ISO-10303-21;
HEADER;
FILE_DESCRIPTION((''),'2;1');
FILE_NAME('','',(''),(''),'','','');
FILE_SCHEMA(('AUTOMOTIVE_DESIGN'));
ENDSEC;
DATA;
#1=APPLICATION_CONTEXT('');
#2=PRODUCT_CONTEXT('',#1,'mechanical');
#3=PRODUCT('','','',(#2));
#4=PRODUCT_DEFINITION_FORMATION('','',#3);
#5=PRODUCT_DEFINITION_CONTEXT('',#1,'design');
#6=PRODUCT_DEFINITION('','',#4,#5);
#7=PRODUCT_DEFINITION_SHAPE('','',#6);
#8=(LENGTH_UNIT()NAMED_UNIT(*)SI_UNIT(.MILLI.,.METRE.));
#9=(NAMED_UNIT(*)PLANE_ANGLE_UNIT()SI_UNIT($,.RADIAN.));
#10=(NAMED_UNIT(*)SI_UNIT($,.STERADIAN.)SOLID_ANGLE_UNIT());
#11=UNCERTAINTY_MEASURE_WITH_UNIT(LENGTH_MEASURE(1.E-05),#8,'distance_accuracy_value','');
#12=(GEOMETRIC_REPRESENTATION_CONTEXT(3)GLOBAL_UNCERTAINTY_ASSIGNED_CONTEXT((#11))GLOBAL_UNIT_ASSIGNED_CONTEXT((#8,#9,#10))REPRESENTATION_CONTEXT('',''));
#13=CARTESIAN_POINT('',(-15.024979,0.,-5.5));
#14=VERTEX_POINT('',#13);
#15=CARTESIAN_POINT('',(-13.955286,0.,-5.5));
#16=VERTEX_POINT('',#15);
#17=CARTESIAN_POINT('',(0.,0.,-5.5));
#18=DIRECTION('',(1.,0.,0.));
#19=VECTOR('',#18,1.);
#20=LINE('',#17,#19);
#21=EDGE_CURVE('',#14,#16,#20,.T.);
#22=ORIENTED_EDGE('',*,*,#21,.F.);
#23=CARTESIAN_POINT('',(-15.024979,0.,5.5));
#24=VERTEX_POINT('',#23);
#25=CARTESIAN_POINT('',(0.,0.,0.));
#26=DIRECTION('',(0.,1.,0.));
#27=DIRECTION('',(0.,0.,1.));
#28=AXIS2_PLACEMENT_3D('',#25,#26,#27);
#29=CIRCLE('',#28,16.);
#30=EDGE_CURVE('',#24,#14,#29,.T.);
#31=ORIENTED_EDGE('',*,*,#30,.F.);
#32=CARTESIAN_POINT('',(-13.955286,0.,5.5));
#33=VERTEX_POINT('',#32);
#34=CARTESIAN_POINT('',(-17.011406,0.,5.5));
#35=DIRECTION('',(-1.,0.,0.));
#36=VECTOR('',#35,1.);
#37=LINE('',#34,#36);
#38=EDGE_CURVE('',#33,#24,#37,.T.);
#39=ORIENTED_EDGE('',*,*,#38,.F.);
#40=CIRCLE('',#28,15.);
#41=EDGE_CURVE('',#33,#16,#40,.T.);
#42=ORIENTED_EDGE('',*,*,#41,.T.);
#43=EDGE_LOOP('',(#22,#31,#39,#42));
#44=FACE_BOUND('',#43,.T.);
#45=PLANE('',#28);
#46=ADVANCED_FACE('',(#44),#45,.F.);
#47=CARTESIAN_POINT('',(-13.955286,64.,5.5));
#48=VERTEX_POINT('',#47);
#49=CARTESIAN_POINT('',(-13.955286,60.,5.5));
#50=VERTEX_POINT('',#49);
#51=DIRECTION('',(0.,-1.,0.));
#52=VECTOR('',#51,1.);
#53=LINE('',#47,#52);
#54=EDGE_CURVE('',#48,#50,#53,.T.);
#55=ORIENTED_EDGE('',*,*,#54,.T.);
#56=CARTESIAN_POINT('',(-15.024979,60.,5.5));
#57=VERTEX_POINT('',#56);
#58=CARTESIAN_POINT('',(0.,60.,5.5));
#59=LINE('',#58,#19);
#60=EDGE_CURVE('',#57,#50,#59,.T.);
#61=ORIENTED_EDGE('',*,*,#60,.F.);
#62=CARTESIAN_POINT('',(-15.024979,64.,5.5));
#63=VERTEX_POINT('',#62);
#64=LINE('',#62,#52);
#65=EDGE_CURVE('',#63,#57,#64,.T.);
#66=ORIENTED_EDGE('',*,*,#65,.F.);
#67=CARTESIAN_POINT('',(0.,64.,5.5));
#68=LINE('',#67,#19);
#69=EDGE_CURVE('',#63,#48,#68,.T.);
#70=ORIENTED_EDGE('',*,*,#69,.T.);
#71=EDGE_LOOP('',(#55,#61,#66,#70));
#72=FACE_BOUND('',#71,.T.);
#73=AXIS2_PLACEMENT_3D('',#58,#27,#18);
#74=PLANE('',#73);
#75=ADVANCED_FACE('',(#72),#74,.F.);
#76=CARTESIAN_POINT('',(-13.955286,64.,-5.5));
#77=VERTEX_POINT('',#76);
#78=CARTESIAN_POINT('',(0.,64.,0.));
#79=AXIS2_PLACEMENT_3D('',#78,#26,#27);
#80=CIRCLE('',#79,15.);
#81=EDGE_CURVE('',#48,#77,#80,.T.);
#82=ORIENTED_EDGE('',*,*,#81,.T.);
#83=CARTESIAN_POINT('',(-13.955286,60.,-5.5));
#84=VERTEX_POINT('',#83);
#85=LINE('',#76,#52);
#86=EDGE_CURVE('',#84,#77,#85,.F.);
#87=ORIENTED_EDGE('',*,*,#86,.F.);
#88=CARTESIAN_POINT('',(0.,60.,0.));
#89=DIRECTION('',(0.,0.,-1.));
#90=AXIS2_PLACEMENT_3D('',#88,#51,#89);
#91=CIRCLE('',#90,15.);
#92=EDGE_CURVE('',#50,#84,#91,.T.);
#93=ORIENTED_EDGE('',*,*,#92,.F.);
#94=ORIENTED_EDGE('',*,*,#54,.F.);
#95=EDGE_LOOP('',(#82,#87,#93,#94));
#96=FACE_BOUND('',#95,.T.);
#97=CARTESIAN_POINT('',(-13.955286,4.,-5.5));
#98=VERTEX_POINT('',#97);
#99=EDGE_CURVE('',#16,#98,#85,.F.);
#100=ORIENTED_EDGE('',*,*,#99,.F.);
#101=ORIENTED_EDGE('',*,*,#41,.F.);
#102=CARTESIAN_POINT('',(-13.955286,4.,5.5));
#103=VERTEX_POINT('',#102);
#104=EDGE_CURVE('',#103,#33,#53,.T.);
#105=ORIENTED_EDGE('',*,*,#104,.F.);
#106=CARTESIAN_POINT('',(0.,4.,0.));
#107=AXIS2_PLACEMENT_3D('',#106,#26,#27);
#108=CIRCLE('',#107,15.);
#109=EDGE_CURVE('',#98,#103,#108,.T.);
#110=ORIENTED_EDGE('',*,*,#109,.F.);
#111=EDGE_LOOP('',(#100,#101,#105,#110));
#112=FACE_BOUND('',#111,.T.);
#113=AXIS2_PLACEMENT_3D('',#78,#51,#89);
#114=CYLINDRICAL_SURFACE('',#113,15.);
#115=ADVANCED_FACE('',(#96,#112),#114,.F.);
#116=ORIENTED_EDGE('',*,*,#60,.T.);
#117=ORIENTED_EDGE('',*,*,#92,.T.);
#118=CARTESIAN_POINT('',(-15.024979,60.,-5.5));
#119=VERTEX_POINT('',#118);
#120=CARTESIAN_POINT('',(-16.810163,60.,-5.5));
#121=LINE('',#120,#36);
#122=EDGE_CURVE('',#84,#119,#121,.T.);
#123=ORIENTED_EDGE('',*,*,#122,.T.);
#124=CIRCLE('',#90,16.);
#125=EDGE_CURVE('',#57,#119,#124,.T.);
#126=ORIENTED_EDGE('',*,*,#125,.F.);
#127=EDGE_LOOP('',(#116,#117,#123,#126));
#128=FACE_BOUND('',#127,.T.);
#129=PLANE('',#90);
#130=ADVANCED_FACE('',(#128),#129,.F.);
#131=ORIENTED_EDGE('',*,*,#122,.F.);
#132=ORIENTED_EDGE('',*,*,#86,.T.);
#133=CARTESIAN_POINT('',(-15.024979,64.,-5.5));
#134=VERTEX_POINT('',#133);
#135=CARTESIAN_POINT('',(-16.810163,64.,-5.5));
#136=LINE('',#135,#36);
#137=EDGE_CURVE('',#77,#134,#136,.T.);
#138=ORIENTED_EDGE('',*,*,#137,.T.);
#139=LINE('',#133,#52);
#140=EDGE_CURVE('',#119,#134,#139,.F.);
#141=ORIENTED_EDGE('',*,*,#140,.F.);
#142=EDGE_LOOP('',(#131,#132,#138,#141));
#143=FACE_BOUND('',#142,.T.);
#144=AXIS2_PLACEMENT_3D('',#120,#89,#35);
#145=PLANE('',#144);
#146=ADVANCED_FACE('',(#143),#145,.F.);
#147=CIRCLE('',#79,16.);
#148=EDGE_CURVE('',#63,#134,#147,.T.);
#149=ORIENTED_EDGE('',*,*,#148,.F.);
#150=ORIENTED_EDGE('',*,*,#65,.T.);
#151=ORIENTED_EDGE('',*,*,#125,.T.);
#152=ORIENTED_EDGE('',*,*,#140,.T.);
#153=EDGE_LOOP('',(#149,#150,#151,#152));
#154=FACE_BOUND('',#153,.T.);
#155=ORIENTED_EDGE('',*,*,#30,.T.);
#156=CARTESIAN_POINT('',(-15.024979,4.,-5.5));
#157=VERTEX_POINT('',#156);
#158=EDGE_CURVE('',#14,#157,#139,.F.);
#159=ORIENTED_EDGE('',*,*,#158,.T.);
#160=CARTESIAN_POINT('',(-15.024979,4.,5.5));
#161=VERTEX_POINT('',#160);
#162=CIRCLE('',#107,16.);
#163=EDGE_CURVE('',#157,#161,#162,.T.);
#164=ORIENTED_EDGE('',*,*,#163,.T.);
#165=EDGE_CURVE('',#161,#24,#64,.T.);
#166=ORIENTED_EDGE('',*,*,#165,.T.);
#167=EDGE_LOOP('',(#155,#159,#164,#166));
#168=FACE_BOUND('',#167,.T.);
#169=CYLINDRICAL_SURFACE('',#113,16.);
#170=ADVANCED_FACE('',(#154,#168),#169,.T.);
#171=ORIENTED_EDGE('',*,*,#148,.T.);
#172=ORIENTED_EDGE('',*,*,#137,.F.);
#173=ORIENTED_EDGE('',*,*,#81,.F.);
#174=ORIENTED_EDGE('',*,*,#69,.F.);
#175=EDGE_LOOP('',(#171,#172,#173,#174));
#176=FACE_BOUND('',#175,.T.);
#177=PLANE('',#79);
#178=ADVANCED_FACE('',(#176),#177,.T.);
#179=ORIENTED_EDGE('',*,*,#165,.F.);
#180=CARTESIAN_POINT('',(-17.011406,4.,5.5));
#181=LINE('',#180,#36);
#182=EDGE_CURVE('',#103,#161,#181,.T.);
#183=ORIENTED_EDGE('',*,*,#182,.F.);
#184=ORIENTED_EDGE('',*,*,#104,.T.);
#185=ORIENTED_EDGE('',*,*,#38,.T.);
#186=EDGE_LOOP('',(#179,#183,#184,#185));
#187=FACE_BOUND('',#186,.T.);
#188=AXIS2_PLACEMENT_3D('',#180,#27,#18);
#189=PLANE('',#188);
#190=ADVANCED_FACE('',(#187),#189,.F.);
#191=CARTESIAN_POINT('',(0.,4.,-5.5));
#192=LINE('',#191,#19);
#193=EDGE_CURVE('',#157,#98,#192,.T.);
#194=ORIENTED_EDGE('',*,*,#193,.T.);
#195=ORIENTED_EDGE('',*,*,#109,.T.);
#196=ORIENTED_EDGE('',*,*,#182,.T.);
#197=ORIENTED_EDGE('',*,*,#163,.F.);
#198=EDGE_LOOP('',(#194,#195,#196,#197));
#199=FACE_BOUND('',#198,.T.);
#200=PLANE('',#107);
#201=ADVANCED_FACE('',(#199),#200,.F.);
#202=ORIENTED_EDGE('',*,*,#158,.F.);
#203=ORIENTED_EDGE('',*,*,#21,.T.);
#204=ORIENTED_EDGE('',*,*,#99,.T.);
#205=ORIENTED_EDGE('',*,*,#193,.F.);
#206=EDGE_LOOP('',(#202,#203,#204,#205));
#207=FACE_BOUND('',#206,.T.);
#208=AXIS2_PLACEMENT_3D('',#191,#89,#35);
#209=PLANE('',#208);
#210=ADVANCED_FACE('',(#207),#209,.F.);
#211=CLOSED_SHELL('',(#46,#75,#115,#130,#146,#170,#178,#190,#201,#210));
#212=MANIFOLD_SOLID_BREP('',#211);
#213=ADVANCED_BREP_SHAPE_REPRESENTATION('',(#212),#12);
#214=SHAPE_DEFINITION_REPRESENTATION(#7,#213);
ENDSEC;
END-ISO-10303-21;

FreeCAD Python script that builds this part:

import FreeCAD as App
import Part
import Sketcher


def add_polygon(sketch, points):
    """Adds a closed chain of lines whose ends are joined by coincident constraints."""
    first, n = sketch.GeometryCount, len(points)
    for a, b in zip(points, points[1:] + points[:1]):
        sketch.addGeometry(Part.LineSegment(App.Vector(*a, 0), App.Vector(*b, 0)), False)
    for i in range(n):
        sketch.addConstraint(Sketcher.Constraint("Coincident", first + i, 2, first + (i + 1) % n, 1))

doc = App.newDocument("Part")
body = doc.addObject("PartDesign::Body", "Body")

# Sketch on XZ plane
sketch1 = body.newObject("Sketcher::SketchObject", "Sketch")
sketch1.AttachmentSupport = (doc.getObject("XZ_Plane"), [""])
sketch1.MapMode = "FlatFace"
sketch1.addGeometry(Part.Circle(App.Vector(0, 0, 0), App.Vector(0, 0, 1), 16), False)
sketch1.addGeometry(Part.Circle(App.Vector(0, 0, 0), App.Vector(0, 0, 1), 15), False)
sketch1.addConstraint(Sketcher.Constraint("Coincident", 0, 3, -1, 1))
sketch1.addConstraint(Sketcher.Constraint("Coincident", 1, 3, -1, 1))
sketch1.addConstraint(Sketcher.Constraint("Diameter", 0, 32.0))
sketch1.addConstraint(Sketcher.Constraint("Diameter", 1, 30.0))
pad1 = body.newObject("PartDesign::Pad", "Pad")
pad1.Profile = sketch1
pad1.Length = 64
pad1.Reversed = True

# Sketch on XZ plane
sketch2 = body.newObject("Sketcher::SketchObject", "Sketch001")
sketch2.AttachmentSupport = (doc.getObject("XZ_Plane"), [""])
sketch2.MapMode = "FlatFace"
sketch2.AttachmentOffset = App.Placement(App.Vector(0, 0, -64), App.Rotation())
add_polygon(sketch2, [(0, -6), (-17, -6), (-17, 6), (0, 6)])  # lines 0-3
sketch2.addConstraint(Sketcher.Constraint("Horizontal", 0))
sketch2.addConstraint(Sketcher.Constraint("Vertical", 1))
sketch2.addConstraint(Sketcher.Constraint("Horizontal", 2))
sketch2.addConstraint(Sketcher.Constraint("Vertical", 3))
sketch2.addConstraint(Sketcher.Constraint("Symmetric", 2, 2, 3, 2, -1, 1))
sketch2.addConstraint(Sketcher.Constraint("DistanceY", 1, 1, 1, 2, 11.0))
sketch2.addConstraint(Sketcher.Constraint("DistanceX", 0, 2, 0, 1, 16.810163))
pocket1 = body.newObject("PartDesign::Pocket", "Pocket")
pocket1.Profile = sketch2
pocket1.Length = 4
pocket1.Reversed = True

# Sketch on XZ plane
sketch3 = body.newObject("Sketcher::SketchObject", "Sketch002")
sketch3.AttachmentSupport = (doc.getObject("XZ_Plane"), [""])
sketch3.MapMode = "FlatFace"
add_polygon(sketch3, [(0, 6), (-17, 6), (-17, -6), (0, -6)])  # lines 0-3
sketch3.addConstraint(Sketcher.Constraint("Horizontal", 0))
sketch3.addConstraint(Sketcher.Constraint("Vertical", 1))
sketch3.addConstraint(Sketcher.Constraint("Horizontal", 2))
sketch3.addConstraint(Sketcher.Constraint("Vertical", 3))
sketch3.addConstraint(Sketcher.Constraint("Symmetric", 2, 2, 3, 2, -1, 1))
sketch3.addConstraint(Sketcher.Constraint("DistanceY", 1, 2, 1, 1, 11.0))
sketch3.addConstraint(Sketcher.Constraint("DistanceX", 0, 2, 0, 1, 17.011406))
pocket2 = body.newObject("PartDesign::Pocket", "Pocket001")
pocket2.Profile = sketch3
pocket2.Length = 4

doc.recompute()
